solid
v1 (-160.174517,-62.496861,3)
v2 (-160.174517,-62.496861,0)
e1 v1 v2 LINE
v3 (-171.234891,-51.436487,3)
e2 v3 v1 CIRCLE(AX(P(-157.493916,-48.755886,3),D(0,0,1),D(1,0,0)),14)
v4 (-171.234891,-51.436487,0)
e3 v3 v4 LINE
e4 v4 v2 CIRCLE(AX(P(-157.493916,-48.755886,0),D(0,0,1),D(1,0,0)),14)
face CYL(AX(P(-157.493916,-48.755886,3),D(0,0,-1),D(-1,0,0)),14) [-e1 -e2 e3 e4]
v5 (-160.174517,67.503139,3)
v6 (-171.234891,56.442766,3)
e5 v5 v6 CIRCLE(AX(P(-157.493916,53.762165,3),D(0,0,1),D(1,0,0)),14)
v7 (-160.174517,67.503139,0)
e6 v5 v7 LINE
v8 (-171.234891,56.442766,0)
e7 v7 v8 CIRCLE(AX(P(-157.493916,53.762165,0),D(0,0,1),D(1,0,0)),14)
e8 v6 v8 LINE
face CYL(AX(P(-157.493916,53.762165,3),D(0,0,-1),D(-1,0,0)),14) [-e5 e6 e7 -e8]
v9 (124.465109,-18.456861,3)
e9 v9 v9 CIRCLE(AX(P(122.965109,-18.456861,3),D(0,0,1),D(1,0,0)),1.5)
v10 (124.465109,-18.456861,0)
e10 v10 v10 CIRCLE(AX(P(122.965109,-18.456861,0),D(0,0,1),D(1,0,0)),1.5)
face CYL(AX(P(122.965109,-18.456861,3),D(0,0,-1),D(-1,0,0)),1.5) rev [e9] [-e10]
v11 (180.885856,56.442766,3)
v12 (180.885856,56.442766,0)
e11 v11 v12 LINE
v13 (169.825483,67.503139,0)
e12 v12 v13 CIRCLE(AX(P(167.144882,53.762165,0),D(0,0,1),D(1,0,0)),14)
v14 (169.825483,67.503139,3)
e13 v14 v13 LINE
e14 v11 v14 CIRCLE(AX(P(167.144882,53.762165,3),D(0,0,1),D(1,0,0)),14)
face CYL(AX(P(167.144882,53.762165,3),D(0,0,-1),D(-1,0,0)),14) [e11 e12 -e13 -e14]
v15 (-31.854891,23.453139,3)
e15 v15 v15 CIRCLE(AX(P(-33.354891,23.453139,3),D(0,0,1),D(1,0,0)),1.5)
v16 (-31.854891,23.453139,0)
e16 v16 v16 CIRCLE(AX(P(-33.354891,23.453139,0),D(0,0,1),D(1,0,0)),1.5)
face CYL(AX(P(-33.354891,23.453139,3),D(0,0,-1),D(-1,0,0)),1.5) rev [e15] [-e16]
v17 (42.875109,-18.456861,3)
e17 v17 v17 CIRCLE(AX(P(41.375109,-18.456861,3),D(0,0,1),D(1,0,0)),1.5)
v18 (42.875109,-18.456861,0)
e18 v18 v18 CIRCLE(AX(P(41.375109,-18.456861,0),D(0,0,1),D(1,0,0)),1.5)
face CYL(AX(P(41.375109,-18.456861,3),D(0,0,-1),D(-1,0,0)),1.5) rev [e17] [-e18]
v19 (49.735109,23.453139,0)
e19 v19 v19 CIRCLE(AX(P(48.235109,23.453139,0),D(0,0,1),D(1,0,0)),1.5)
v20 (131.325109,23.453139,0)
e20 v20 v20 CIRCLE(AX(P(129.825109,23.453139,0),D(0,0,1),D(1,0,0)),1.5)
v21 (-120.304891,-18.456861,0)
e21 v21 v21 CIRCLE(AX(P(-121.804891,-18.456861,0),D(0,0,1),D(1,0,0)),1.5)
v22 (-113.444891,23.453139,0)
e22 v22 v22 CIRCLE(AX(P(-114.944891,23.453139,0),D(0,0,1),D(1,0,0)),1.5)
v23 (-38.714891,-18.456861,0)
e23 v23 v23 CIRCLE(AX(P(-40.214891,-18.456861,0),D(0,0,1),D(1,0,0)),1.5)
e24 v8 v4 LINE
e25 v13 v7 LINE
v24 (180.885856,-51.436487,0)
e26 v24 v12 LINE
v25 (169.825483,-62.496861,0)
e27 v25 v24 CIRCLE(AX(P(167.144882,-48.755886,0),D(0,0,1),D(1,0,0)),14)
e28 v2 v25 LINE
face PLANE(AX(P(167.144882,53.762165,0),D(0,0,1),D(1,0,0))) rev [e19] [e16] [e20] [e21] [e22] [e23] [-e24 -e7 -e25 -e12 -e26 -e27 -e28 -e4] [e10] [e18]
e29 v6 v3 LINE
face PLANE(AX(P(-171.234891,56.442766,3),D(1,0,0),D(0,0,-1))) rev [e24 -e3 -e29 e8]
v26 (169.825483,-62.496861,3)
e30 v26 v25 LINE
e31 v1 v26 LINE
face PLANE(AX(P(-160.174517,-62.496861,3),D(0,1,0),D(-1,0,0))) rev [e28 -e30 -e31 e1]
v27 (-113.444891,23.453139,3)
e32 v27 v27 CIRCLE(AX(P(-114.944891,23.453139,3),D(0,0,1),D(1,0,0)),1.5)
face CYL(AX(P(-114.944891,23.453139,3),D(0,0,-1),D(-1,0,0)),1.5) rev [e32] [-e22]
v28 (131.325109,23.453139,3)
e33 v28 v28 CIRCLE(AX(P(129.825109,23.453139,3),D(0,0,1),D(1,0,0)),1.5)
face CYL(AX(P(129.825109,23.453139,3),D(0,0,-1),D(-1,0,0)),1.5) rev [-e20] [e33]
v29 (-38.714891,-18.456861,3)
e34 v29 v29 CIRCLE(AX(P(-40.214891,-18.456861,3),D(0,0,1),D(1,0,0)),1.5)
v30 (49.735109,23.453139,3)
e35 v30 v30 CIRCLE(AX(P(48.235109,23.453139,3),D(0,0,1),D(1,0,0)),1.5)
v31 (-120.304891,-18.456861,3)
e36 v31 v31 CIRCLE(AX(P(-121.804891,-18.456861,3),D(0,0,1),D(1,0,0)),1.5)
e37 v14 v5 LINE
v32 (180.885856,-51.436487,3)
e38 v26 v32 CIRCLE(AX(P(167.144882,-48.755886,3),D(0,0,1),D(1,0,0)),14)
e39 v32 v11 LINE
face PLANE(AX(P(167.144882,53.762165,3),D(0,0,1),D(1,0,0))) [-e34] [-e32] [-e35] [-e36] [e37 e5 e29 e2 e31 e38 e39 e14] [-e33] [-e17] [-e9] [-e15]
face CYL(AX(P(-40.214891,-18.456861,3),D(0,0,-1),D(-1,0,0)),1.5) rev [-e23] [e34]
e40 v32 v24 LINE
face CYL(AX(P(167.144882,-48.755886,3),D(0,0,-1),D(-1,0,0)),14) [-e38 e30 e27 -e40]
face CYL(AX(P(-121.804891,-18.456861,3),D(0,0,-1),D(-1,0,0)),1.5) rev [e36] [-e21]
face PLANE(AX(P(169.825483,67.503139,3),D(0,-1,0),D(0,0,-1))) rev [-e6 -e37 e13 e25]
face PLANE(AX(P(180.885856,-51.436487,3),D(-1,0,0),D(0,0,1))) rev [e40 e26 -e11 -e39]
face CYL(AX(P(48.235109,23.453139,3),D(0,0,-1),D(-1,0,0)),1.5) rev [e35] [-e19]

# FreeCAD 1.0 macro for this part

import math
import FreeCAD as App
import Part
import Sketcher

doc = App.newDocument("Part")
body = doc.addObject("PartDesign::Body", "Body")

# Sketch on XY plane
sketch1 = body.newObject("Sketcher::SketchObject", "Sketch")
sketch1.AttachmentSupport = (doc.getObject("XY_Plane"), [""])
sketch1.MapMode = "FlatFace"
sketch1.addGeometry([
    Part.LineSegment(App.Vector(169.8, 67.5, 0), App.Vector(-160.2, 67.5, 0)),  # 0
    Part.ArcOfCircle(Part.Circle(App.Vector(-157.5, 53.8, 0), App.Vector(0, 0, 1), 14), math.radians(101), math.radians(169)),  # 1
    Part.LineSegment(App.Vector(-171.2, 56.4, 0), App.Vector(-171.2, -51.4, 0)),  # 2
    Part.ArcOfCircle(Part.Circle(App.Vector(-157.5, -48.8, 0), App.Vector(0, 0, 1), 14), math.radians(-169), math.radians(-101)),  # 3
    Part.LineSegment(App.Vector(-160.2, -62.5, 0), App.Vector(169.8, -62.5, 0)),  # 4
    Part.ArcOfCircle(Part.Circle(App.Vector(167.1, -48.8, 0), App.Vector(0, 0, 1), 14), math.radians(-79), math.radians(-11)),  # 5
    Part.LineSegment(App.Vector(180.9, -51.4, 0), App.Vector(180.9, 56.4, 0)),  # 6
    Part.ArcOfCircle(Part.Circle(App.Vector(167.1, 53.8, 0), App.Vector(0, 0, 1), 14), math.radians(11), math.radians(79)),  # 7
    Part.Circle(App.Vector(-121.8, -18.5, 0), App.Vector(0, 0, 1), 1.5),  # 8
    Part.Circle(App.Vector(-40.2, -18.5, 0), App.Vector(0, 0, 1), 1.5),  # 9
    Part.Circle(App.Vector(41.4, -18.5, 0), App.Vector(0, 0, 1), 1.5),  # 10
    Part.Circle(App.Vector(123, -18.5, 0), App.Vector(0, 0, 1), 1.5),  # 11
    Part.Circle(App.Vector(-114.9, 23.5, 0), App.Vector(0, 0, 1), 1.5),  # 12
    Part.Circle(App.Vector(-33.4, 23.5, 0), App.Vector(0, 0, 1), 1.5),  # 13
    Part.Circle(App.Vector(48.2, 23.5, 0), App.Vector(0, 0, 1), 1.5),  # 14
    Part.Circle(App.Vector(129.8, 23.5, 0), App.Vector(0, 0, 1), 1.5),  # 15
], False)
sketch1.addConstraint([
    Sketcher.Constraint("Coincident", 0, 2, 1, 1),
    Sketcher.Constraint("Coincident", 1, 2, 2, 1),
    Sketcher.Constraint("Coincident", 2, 2, 3, 1),
    Sketcher.Constraint("Coincident", 3, 2, 4, 1),
    Sketcher.Constraint("Coincident", 4, 2, 5, 1),
    Sketcher.Constraint("Coincident", 5, 2, 6, 1),
    Sketcher.Constraint("Coincident", 6, 2, 7, 1),
    Sketcher.Constraint("Coincident", 7, 2, 0, 1),
    Sketcher.Constraint("Horizontal", 0),
    Sketcher.Constraint("Vertical", 2),
    Sketcher.Constraint("Horizontal", 4),
    Sketcher.Constraint("Vertical", 6),
    Sketcher.Constraint("Equal", 1, 3),
    Sketcher.Constraint("Equal", 3, 5),
    Sketcher.Constraint("Equal", 5, 7),
    Sketcher.Constraint("Equal", 8, 9),
    Sketcher.Constraint("Equal", 9, 10),
    Sketcher.Constraint("Equal", 10, 11),
    Sketcher.Constraint("Equal", 11, 12),
    Sketcher.Constraint("Equal", 12, 13),
    Sketcher.Constraint("Equal", 13, 14),
    Sketcher.Constraint("Equal", 14, 15),
    Sketcher.Constraint("Horizontal", 3, 3, 5, 3),
    Sketcher.Constraint("Horizontal", 1, 3, 7, 3),
    Sketcher.Constraint("Horizontal", 8, 3, 9, 3),
    Sketcher.Constraint("Horizontal", 9, 3, 10, 3),
    Sketcher.Constraint("Horizontal", 10, 3, 11, 3),
    Sketcher.Constraint("Horizontal", 12, 3, 13, 3),
    Sketcher.Constraint("Horizontal", 13, 3, 14, 3),
    Sketcher.Constraint("Horizontal", 14, 3, 15, 3),
    Sketcher.Constraint("Horizontal", 2, 2, 5, 2),
    Sketcher.Constraint("Horizontal", 1, 2, 6, 2),
    Sketcher.Constraint("Vertical", 1, 3, 3, 3),
    Sketcher.Constraint("Vertical", 0, 2, 3, 2),
    Sketcher.Constraint("Diameter", 8, 3.0),
    Sketcher.Constraint("Radius", 1, 14.0),
    Sketcher.Constraint("DistanceX", 0, 2, 0, 1, 330.0),
    Sketcher.Constraint("DistanceX", 8, 3, 9, 3, 81.59),
    Sketcher.Constraint("DistanceX", 9, 3, 10, 3, 81.59),
    Sketcher.Constraint("DistanceX", 10, 3, 11, 3, 81.59),
    Sketcher.Constraint("DistanceX", 8, 3, 12, 3, 6.86),
    Sketcher.Constraint("DistanceY", 8, 3, 12, 3, 41.91),
    Sketcher.Constraint("DistanceX", 9, 3, 13, 3, 6.86),
    Sketcher.Constraint("DistanceX", 10, 3, 14, 3, 6.86),
    Sketcher.Constraint("DistanceX", 11, 3, 15, 3, 6.86),
    Sketcher.Constraint("DistanceY", 12, 3, 0, 2, 44.05),
    Sketcher.Constraint("DistanceX", 1, 2, 12, 3, 56.29),
    Sketcher.Constraint("DistanceY", 3, 2, 8, 3, 44.04),
    Sketcher.Constraint("DistanceX", 3, 3, 5, 3, 324.638798),
    Sketcher.Constraint("DistanceY", 1, 3, 1, 2, 2.680601),
    Sketcher.Constraint("DistanceX", -1, 1, 5, 3, 167.144882),
    Sketcher.Constraint("DistanceY", 8, 3, -1, 1, 18.456861),
])
pad1 = body.newObject("PartDesign::Pad", "Pad")
pad1.Profile = sketch1
pad1.Length = 3

doc.recompute()
